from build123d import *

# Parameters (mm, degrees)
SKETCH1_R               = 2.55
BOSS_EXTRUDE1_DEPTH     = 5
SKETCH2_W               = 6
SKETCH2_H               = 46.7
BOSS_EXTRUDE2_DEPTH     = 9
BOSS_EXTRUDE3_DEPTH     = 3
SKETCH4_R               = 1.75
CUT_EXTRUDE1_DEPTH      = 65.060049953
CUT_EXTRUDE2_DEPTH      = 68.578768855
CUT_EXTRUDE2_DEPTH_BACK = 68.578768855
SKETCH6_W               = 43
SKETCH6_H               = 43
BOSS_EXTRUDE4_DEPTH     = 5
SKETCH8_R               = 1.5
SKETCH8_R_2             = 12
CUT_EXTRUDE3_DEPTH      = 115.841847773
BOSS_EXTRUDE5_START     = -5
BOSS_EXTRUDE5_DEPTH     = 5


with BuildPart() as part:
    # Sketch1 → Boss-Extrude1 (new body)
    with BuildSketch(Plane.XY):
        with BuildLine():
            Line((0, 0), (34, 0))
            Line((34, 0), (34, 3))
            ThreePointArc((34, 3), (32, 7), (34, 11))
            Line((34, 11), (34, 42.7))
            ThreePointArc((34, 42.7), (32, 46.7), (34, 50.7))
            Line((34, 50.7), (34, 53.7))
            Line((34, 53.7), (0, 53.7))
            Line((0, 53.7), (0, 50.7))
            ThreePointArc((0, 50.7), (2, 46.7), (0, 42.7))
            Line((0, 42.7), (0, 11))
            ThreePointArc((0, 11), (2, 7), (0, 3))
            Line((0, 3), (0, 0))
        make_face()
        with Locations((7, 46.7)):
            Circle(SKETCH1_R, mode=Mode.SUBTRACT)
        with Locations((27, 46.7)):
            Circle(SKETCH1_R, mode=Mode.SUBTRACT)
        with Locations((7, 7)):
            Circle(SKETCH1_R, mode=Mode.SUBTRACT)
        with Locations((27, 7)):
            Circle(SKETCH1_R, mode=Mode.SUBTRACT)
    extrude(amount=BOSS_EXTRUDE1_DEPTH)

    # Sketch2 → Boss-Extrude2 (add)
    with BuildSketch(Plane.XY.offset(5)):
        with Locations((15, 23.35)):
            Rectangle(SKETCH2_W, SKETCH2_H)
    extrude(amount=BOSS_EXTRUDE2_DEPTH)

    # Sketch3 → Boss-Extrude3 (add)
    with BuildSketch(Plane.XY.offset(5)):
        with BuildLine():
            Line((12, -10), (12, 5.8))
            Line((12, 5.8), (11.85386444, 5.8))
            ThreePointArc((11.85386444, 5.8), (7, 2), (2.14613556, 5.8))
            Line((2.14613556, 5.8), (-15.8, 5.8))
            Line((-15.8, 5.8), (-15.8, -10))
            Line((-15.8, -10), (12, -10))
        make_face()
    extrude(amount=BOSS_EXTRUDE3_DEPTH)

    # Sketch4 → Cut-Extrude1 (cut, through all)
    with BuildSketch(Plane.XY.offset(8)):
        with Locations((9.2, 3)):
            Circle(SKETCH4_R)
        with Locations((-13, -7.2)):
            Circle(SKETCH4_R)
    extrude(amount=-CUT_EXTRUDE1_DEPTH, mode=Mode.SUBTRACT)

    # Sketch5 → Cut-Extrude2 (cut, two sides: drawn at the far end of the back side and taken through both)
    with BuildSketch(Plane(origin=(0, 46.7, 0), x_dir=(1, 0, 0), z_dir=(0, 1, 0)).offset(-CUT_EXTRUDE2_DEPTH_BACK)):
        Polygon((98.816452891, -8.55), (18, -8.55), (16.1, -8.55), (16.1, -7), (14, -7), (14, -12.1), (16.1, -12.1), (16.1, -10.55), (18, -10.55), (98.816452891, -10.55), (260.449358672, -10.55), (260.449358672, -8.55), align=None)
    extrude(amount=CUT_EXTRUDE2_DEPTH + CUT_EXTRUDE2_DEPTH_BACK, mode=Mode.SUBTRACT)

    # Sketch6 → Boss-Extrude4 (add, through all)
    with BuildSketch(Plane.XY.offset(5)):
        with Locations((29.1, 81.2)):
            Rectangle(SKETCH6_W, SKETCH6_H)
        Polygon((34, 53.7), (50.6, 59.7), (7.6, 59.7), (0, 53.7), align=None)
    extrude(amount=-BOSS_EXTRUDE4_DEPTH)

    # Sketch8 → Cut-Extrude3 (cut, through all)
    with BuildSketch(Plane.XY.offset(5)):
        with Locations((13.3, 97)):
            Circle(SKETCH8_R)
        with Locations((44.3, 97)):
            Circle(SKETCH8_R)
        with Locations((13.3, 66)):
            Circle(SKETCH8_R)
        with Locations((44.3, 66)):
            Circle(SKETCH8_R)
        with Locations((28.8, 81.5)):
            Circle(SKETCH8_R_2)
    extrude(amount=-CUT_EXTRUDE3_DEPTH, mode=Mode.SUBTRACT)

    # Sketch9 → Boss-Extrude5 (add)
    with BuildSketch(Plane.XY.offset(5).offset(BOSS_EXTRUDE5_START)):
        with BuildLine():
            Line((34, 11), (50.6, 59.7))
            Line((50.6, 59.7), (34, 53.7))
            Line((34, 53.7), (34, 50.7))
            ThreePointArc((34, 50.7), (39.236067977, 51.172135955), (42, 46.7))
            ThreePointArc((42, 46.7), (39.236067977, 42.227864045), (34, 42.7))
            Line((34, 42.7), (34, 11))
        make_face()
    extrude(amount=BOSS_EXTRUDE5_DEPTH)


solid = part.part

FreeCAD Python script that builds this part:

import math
import FreeCAD as App
import Part
import Sketcher

doc = App.newDocument("Part")
body = doc.addObject("PartDesign::Body", "Body")

sketch1 = doc.addObject("Sketcher::SketchObject", "Sketch")
body.addObject(sketch1)
sketch1.AttachmentSupport = (doc.XY_Plane, [""])
sketch1.MapMode = "FlatFace"
sketch1.addGeometry([
    Part.LineSegment(App.Vector(0, 0, 0), App.Vector(34, 0, 0)),
    Part.LineSegment(App.Vector(34, 0, 0), App.Vector(34, 3, 0)),
    Part.ArcOfCircle(Part.Circle(App.Vector(37, 7, 0), App.Vector(0, 0, 1), 5), math.radians(127), math.radians(233)),
    Part.LineSegment(App.Vector(34, 11, 0), App.Vector(34, 42.7, 0)),
    Part.ArcOfCircle(Part.Circle(App.Vector(37, 46.7, 0), App.Vector(0, 0, 1), 5), math.radians(127), math.radians(233)),
    Part.LineSegment(App.Vector(34, 50.7, 0), App.Vector(34, 53.7, 0)),
    Part.LineSegment(App.Vector(34, 53.7, 0), App.Vector(0, 53.7, 0)),
    Part.LineSegment(App.Vector(0, 53.7, 0), App.Vector(0, 50.7, 0)),
    Part.ArcOfCircle(Part.Circle(App.Vector(-3, 46.7, 0), App.Vector(0, 0, 1), 5), math.radians(-53), math.radians(53)),
    Part.LineSegment(App.Vector(0, 42.7, 0), App.Vector(0, 11, 0)),
    Part.ArcOfCircle(Part.Circle(App.Vector(-3, 7, 0), App.Vector(0, 0, 1), 5), math.radians(-53), math.radians(53)),
    Part.LineSegment(App.Vector(0, 3, 0), App.Vector(0, 0, 0)),
    Part.Circle(App.Vector(7, 7, 0), App.Vector(0, 0, 1), 2.5),
    Part.Circle(App.Vector(27, 7, 0), App.Vector(0, 0, 1), 2.5),
    Part.Circle(App.Vector(7, 46.7, 0), App.Vector(0, 0, 1), 2.5),
    Part.Circle(App.Vector(27, 46.7, 0), App.Vector(0, 0, 1), 2.5),
], False)
sketch1.addConstraint([
    Sketcher.Constraint("Coincident", 0, 2, 1, 1),
    Sketcher.Constraint("Coincident", 1, 2, 2, 2),
    Sketcher.Constraint("Coincident", 2, 1, 3, 1),
    Sketcher.Constraint("Coincident", 3, 2, 4, 2),
    Sketcher.Constraint("Coincident", 4, 1, 5, 1),
    Sketcher.Constraint("Coincident", 5, 2, 6, 1),
    Sketcher.Constraint("Coincident", 6, 2, 7, 1),
    Sketcher.Constraint("Coincident", 7, 2, 8, 2),
    Sketcher.Constraint("Coincident", 8, 1, 9, 1),
    Sketcher.Constraint("Coincident", 9, 2, 10, 2),
    Sketcher.Constraint("Coincident", 10, 1, 11, 1),
    Sketcher.Constraint("Coincident", 11, 2, 0, 1),
    Sketcher.Constraint("Horizontal", 0),
    Sketcher.Constraint("Vertical", 1),
    Sketcher.Constraint("Vertical", 3),
    Sketcher.Constraint("Vertical", 5),
    Sketcher.Constraint("Horizontal", 6),
    Sketcher.Constraint("Vertical", 7),
    Sketcher.Constraint("Vertical", 9),
    Sketcher.Constraint("Vertical", 11),
    Sketcher.Constraint("Coincident", 11, 2, -1, 1),
    Sketcher.Constraint("Equal", 2, 4),
    Sketcher.Constraint("Equal", 4, 8),
    Sketcher.Constraint("Equal", 8, 10),
    Sketcher.Constraint("Equal", 12, 13),
    Sketcher.Constraint("Equal", 13, 14),
    Sketcher.Constraint("Equal", 14, 15),
    Sketcher.Constraint("PointOnObject", 6, 2, -2),
    Sketcher.Constraint("PointOnObject", 8, 1, -2),
    Sketcher.Constraint("Horizontal", 4, 3, 8, 3),
    Sketcher.Constraint("Horizontal", 2, 3, 10, 3),
    Sketcher.Constraint("Horizontal", 10, 3, 12, 3),
    Sketcher.Constraint("Horizontal", 12, 3, 13, 3),
    Sketcher.Constraint("Horizontal", 8, 3, 14, 3),
    Sketcher.Constraint("Horizontal", 14, 3, 15, 3),
    Sketcher.Constraint("Horizontal", 4, 1, 7, 2),
    Sketcher.Constraint("Horizontal", 3, 2, 8, 1),
    Sketcher.Constraint("Horizontal", 2, 1, 9, 2),
    Sketcher.Constraint("Horizontal", 1, 2, 10, 1),
    Sketcher.Constraint("Vertical", 2, 3, 4, 3),
    Sketcher.Constraint("Vertical", 12, 3, 14, 3),
    Sketcher.Constraint("Vertical", 13, 3, 15, 3),
    Sketcher.Constraint("Equal", 1, 5),
    Sketcher.Constraint("Radius", 2, 5.0),
    Sketcher.Constraint("Diameter", 12, 5.1),
    Sketcher.Constraint("DistanceX", 0, 1, 0, 2, 34.0),
    Sketcher.Constraint("DistanceY", 1, 1, 1, 2, 3.0),
    Sketcher.Constraint("DistanceY", 3, 1, 3, 2, 31.7),
    Sketcher.Constraint("DistanceX", -1, 1, 2, 3, 37.0),
    Sketcher.Constraint("DistanceX", -1, 1, 12, 3, 7.0),
    Sketcher.Constraint("DistanceX", -1, 1, 13, 3, 27.0),
])
pad1 = doc.addObject("PartDesign::Pad", "Pad")
body.addObject(pad1)
pad1.Profile = sketch1
pad1.Length = 5

sketch2 = doc.addObject("Sketcher::SketchObject", "Sketch001")
body.addObject(sketch2)
sketch2.AttachmentSupport = (doc.XY_Plane, [""])
sketch2.MapMode = "FlatFace"
sketch2.AttachmentOffset = App.Placement(App.Vector(0, 0, 5), App.Rotation())
sketch2.addGeometry([
    Part.LineSegment(App.Vector(12, 47, 0), App.Vector(12, 0, 0)),
    Part.LineSegment(App.Vector(12, 0, 0), App.Vector(18, 0, 0)),
    Part.LineSegment(App.Vector(18, 0, 0), App.Vector(18, 47, 0)),
    Part.LineSegment(App.Vector(18, 47, 0), App.Vector(12, 47, 0)),
], False)
sketch2.addConstraint([
    Sketcher.Constraint("Coincident", 0, 2, 1, 1),
    Sketcher.Constraint("Coincident", 1, 2, 2, 1),
    Sketcher.Constraint("Coincident", 2, 2, 3, 1),
    Sketcher.Constraint("Coincident", 3, 2, 0, 1),
    Sketcher.Constraint("Vertical", 0),
    Sketcher.Constraint("Horizontal", 1),
    Sketcher.Constraint("Vertical", 2),
    Sketcher.Constraint("Horizontal", 3),
    Sketcher.Constraint("PointOnObject", 0, 2, -1),
    Sketcher.Constraint("DistanceX", 1, 1, 1, 2, 6.0),
    Sketcher.Constraint("DistanceY", 0, 2, 0, 1, 46.7),
    Sketcher.Constraint("DistanceX", -1, 1, 0, 2, 12.0),
])
pad2 = doc.addObject("PartDesign::Pad", "Pad001")
body.addObject(pad2)
pad2.Profile = sketch2
pad2.Length = 9

sketch3 = doc.addObject("Sketcher::SketchObject", "Sketch002")
body.addObject(sketch3)
sketch3.AttachmentSupport = (doc.XY_Plane, [""])
sketch3.MapMode = "FlatFace"
sketch3.AttachmentOffset = App.Placement(App.Vector(0, 0, 5), App.Rotation())
sketch3.addGeometry([
    Part.LineSegment(App.Vector(12, -10, 0), App.Vector(12, 5.8, 0)),
    Part.LineSegment(App.Vector(12, 5.8, 0), App.Vector(11.85, 5.8, 0)),
    Part.ArcOfCircle(Part.Circle(App.Vector(7, 7, 0), App.Vector(0, 0, 1), 5), math.radians(-166), math.radians(-14)),
    Part.LineSegment(App.Vector(2.15, 5.8, 0), App.Vector(-15.8, 5.8, 0)),
    Part.LineSegment(App.Vector(-15.8, 5.8, 0), App.Vector(-15.8, -10, 0)),
    Part.LineSegment(App.Vector(-15.8, -10, 0), App.Vector(12, -10, 0)),
], False)
sketch3.addConstraint([
    Sketcher.Constraint("Coincident", 0, 2, 1, 1),
    Sketcher.Constraint("Coincident", 1, 2, 2, 2),
    Sketcher.Constraint("Coincident", 2, 1, 3, 1),
    Sketcher.Constraint("Coincident", 3, 2, 4, 1),
    Sketcher.Constraint("Coincident", 4, 2, 5, 1),
    Sketcher.Constraint("Coincident", 5, 2, 0, 1),
    Sketcher.Constraint("Vertical", 0),
    Sketcher.Constraint("Horizontal", 1),
    Sketcher.Constraint("Horizontal", 3),
    Sketcher.Constraint("Vertical", 4),
    Sketcher.Constraint("Horizontal", 5),
    Sketcher.Constraint("Horizontal", 1, 2, 2, 1),
    Sketcher.Constraint("Radius", 2, 5.0),
    Sketcher.Constraint("DistanceX", 5, 1, 5, 2, 27.8),
    Sketcher.Constraint("DistanceY", 0, 1, 0, 2, 15.8),
    Sketcher.Constraint("DistanceX", -1, 1, 2, 3, 7.0),
    Sketcher.Constraint("DistanceY", -1, 1, 2, 3, 7.0),
    Sketcher.Constraint("DistanceX", -1, 1, 0, 2, 12.0),
    Sketcher.Constraint("DistanceY", 4, 2, -1, 1, 10.0),
])
pad3 = doc.addObject("PartDesign::Pad", "Pad002")
body.addObject(pad3)
pad3.Profile = sketch3
pad3.Length = 3

sketch4 = doc.addObject("Sketcher::SketchObject", "Sketch003")
body.addObject(sketch4)
sketch4.AttachmentSupport = (doc.XY_Plane, [""])
sketch4.MapMode = "FlatFace"
sketch4.AttachmentOffset = App.Placement(App.Vector(0, 0, 8), App.Rotation())
sketch4.addGeometry([
    Part.Circle(App.Vector(9.2, 3, 0), App.Vector(0, 0, 1), 1.8),
    Part.Circle(App.Vector(-13, -7.2, 0), App.Vector(0, 0, 1), 1.8),
], False)
sketch4.addConstraint([
    Sketcher.Constraint("Equal", 0, 1),
    Sketcher.Constraint("Diameter", 0, 3.5),
    Sketcher.Constraint("DistanceY", -1, 1, 0, 3, 3.0),
    Sketcher.Constraint("DistanceX", 1, 3, -1, 1, 13.0),
    Sketcher.Constraint("DistanceX", -1, 1, 0, 3, 9.2),
    Sketcher.Constraint("DistanceY", 1, 3, -1, 1, 7.2),
])
pocket1 = doc.addObject("PartDesign::Pocket", "Pocket")
body.addObject(pocket1)
pocket1.Profile = sketch4
pocket1.Type = "ThroughAll"

sketch5 = doc.addObject("Sketcher::SketchObject", "Sketch004")
body.addObject(sketch5)
sketch5.AttachmentSupport = (doc.XZ_Plane, [""])
sketch5.MapMode = "FlatFace"
sketch5.AttachmentOffset = App.Placement(App.Vector(0, 0, -46.7), App.Rotation())
sketch5.addGeometry([
    Part.LineSegment(App.Vector(16.1, 8.6, 0), App.Vector(16.1, 7, 0)),
    Part.LineSegment(App.Vector(16.1, 7, 0), App.Vector(14, 7, 0)),
    Part.LineSegment(App.Vector(14, 7, 0), App.Vector(14, 12.1, 0)),
    Part.LineSegment(App.Vector(14, 12.1, 0), App.Vector(16.1, 12.1, 0)),
    Part.LineSegment(App.Vector(16.1, 12.1, 0), App.Vector(16.1, 10.6, 0)),
    Part.LineSegment(App.Vector(16.1, 10.6, 0), App.Vector(260.4, 10.6, 0)),
    Part.LineSegment(App.Vector(260.4, 10.6, 0), App.Vector(260.4, 8.6, 0)),
    Part.LineSegment(App.Vector(260.4, 8.6, 0), App.Vector(16.1, 8.6, 0)),
], False)
sketch5.addConstraint([
    Sketcher.Constraint("Coincident", 0, 2, 1, 1),
    Sketcher.Constraint("Coincident", 1, 2, 2, 1),
    Sketcher.Constraint("Coincident", 2, 2, 3, 1),
    Sketcher.Constraint("Coincident", 3, 2, 4, 1),
    Sketcher.Constraint("Coincident", 4, 2, 5, 1),
    Sketcher.Constraint("Coincident", 5, 2, 6, 1),
    Sketcher.Constraint("Coincident", 6, 2, 7, 1),
    Sketcher.Constraint("Coincident", 7, 2, 0, 1),
    Sketcher.Constraint("Vertical", 0),
    Sketcher.Constraint("Horizontal", 1),
    Sketcher.Constraint("Vertical", 2),
    Sketcher.Constraint("Horizontal", 3),
    Sketcher.Constraint("Vertical", 4),
    Sketcher.Constraint("Horizontal", 5),
    Sketcher.Constraint("Vertical", 6),
    Sketcher.Constraint("Horizontal", 7),
    Sketcher.Constraint("Vertical", 0, 2, 3, 2),
    Sketcher.Constraint("Equal", 0, 4),
    Sketcher.Constraint("DistanceY", 6, 2, 6, 1, 2.0),
    Sketcher.Constraint("DistanceX", 1, 2, 1, 1, 2.1),
    Sketcher.Constraint("DistanceY", 2, 1, 2, 2, 5.1),
    Sketcher.Constraint("DistanceY", -1, 1, 0, 2, 7.0),
    Sketcher.Constraint("DistanceX", -1, 1, 1, 2, 14.0),
    Sketcher.Constraint("DistanceX", 5, 1, 5, 2, 244.349359),
])
pocket2 = doc.addObject("PartDesign::Pocket", "Pocket001")
body.addObject(pocket2)
pocket2.Profile = sketch5
pocket2.Type = "ThroughAll"
pocket2.Midplane = True

sketch6 = doc.addObject("Sketcher::SketchObject", "Sketch005")
body.addObject(sketch6)
sketch6.AttachmentSupport = (doc.XY_Plane, [""])
sketch6.MapMode = "FlatFace"
sketch6.AttachmentOffset = App.Placement(App.Vector(0, 0, 5), App.Rotation())
sketch6.addGeometry([
    Part.LineSegment(App.Vector(8, 103, 0), App.Vector(8, 60, 0)),
    Part.LineSegment(App.Vector(8, 60, 0), App.Vector(0, 54, 0)),
    Part.LineSegment(App.Vector(0, 54, 0), App.Vector(34, 54, 0)),
    Part.LineSegment(App.Vector(34, 54, 0), App.Vector(51, 60, 0)),
    Part.LineSegment(App.Vector(51, 60, 0), App.Vector(51, 103, 0)),
    Part.LineSegment(App.Vector(51, 103, 0), App.Vector(8, 103, 0)),
], False)
sketch6.addConstraint([
    Sketcher.Constraint("Coincident", 0, 2, 1, 1),
    Sketcher.Constraint("Coincident", 1, 2, 2, 1),
    Sketcher.Constraint("Coincident", 2, 2, 3, 1),
    Sketcher.Constraint("Coincident", 3, 2, 4, 1),
    Sketcher.Constraint("Coincident", 4, 2, 5, 1),
    Sketcher.Constraint("Coincident", 5, 2, 0, 1),
    Sketcher.Constraint("Vertical", 0),
    Sketcher.Constraint("Horizontal", 2),
    Sketcher.Constraint("Vertical", 4),
    Sketcher.Constraint("Horizontal", 5),
    Sketcher.Constraint("PointOnObject", 1, 2, -2),
    Sketcher.Constraint("Horizontal", 0, 2, 3, 2),
    Sketcher.Constraint("Equal", 5, 0),
    Sketcher.Constraint("DistanceX", 2, 1, 2, 2, 34.0),
    Sketcher.Constraint("DistanceX", 5, 2, 5, 1, 43.0),
    Sketcher.Constraint("DistanceY", 1, 2, 0, 2, 6.0),
    Sketcher.Constraint("DistanceX", -1, 1, 0, 2, 7.6),
    Sketcher.Constraint("DistanceY", -1, 1, 0, 2, 59.7),
])
pad4 = doc.addObject("PartDesign::Pad", "Pad003")
body.addObject(pad4)
pad4.Profile = sketch6
pad4.Length = 5
pad4.Reversed = True

sketch7 = doc.addObject("Sketcher::SketchObject", "Sketch006")
body.addObject(sketch7)
sketch7.AttachmentSupport = (doc.XY_Plane, [""])
sketch7.MapMode = "FlatFace"
sketch7.AttachmentOffset = App.Placement(App.Vector(0, 0, 5), App.Rotation())
sketch7.addGeometry([
    Part.Circle(App.Vector(13.3, 97, 0), App.Vector(0, 0, 1), 1.5),
    Part.Circle(App.Vector(44.3, 97, 0), App.Vector(0, 0, 1), 1.5),
    Part.Circle(App.Vector(13.3, 66, 0), App.Vector(0, 0, 1), 1.5),
    Part.Circle(App.Vector(44.3, 66, 0), App.Vector(0, 0, 1), 1.5),
    Part.Circle(App.Vector(28.8, 81.5, 0), App.Vector(0, 0, 1), 12),
], False)
sketch7.addConstraint([
    Sketcher.Constraint("Equal", 0, 1),
    Sketcher.Constraint("Equal", 1, 2),
    Sketcher.Constraint("Equal", 2, 3),
    Sketcher.Constraint("Horizontal", 0, 3, 1, 3),
    Sketcher.Constraint("Horizontal", 2, 3, 3, 3),
    Sketcher.Constraint("Vertical", 0, 3, 2, 3),
    Sketcher.Constraint("Vertical", 1, 3, 3, 3),
    Sketcher.Constraint("Diameter", 0, 3.0),
    Sketcher.Constraint("Diameter", 4, 24.0),
    Sketcher.Constraint("DistanceY", -1, 1, 0, 3, 97.0),
    Sketcher.Constraint("DistanceY", -1, 1, 2, 3, 66.0),
    Sketcher.Constraint("DistanceX", 0, 3, 1, 3, 31.0),
    Sketcher.Constraint("DistanceX", -1, 1, 0, 3, 13.3),
    Sketcher.Constraint("DistanceX", -1, 1, 4, 3, 28.8),
    Sketcher.Constraint("DistanceY", -1, 1, 4, 3, 81.5),
])
pocket3 = doc.addObject("PartDesign::Pocket", "Pocket002")
body.addObject(pocket3)
pocket3.Profile = sketch7
pocket3.Type = "ThroughAll"

sketch8 = doc.addObject("Sketcher::SketchObject", "Sketch007")
body.addObject(sketch8)
sketch8.AttachmentSupport = (doc.XY_Plane, [""])
sketch8.MapMode = "FlatFace"
sketch8.addGeometry([
    Part.LineSegment(App.Vector(34, 11, 0), App.Vector(50.6, 59.7, 0)),
    Part.LineSegment(App.Vector(50.6, 59.7, 0), App.Vector(34, 53.7, 0)),
    Part.LineSegment(App.Vector(34, 53.7, 0), App.Vector(34, 50.7, 0)),
    Part.ArcOfCircle(Part.Circle(App.Vector(37, 46.7, 0), App.Vector(0, 0, 1), 5), math.radians(0), math.radians(127)),
    Part.ArcOfCircle(Part.Circle(App.Vector(37, 46.7, 0), App.Vector(0, 0, 1), 5), math.radians(-127), math.radians(0)),
    Part.LineSegment(App.Vector(34, 42.7, 0), App.Vector(34, 11, 0)),
], False)
sketch8.addConstraint([
    Sketcher.Constraint("Coincident", 0, 2, 1, 1),
    Sketcher.Constraint("Coincident", 1, 2, 2, 1),
    Sketcher.Constraint("Coincident", 2, 2, 3, 2),
    Sketcher.Constraint("Tangent", 3, 1, 4, 2),
    Sketcher.Constraint("Coincident", 4, 1, 5, 1),
    Sketcher.Constraint("Coincident", 5, 2, 0, 1),
    Sketcher.Constraint("Vertical", 2),
    Sketcher.Constraint("Vertical", 5),
    Sketcher.Constraint("Equal", 3, 4),
    Sketcher.Constraint("Horizontal", 4, 3, 3, 1),
    Sketcher.Constraint("Vertical", 2, 2, 4, 1),
    Sketcher.Constraint("Radius", 3, 5.0),
    Sketcher.Constraint("DistanceY", 2, 2, 2, 1, 3.0),
    Sketcher.Constraint("DistanceY", 5, 2, 5, 1, 31.7),
    Sketcher.Constraint("DistanceX", -1, 1, 3, 3, 37.0),
    Sketcher.Constraint("DistanceX", -1, 1, 1, 2, 34.0),
    Sketcher.Constraint("DistanceY", -1, 1, 5, 2, 11.0),
    Sketcher.Constraint("DistanceY", 3, 3, 0, 2, 13.0),
    Sketcher.Constraint("DistanceX", -1, 1, 0, 2, 50.6),
])
pad5 = doc.addObject("PartDesign::Pad", "Pad004")
body.addObject(pad5)
pad5.Profile = sketch8
pad5.Length = 5

doc.recompute()
